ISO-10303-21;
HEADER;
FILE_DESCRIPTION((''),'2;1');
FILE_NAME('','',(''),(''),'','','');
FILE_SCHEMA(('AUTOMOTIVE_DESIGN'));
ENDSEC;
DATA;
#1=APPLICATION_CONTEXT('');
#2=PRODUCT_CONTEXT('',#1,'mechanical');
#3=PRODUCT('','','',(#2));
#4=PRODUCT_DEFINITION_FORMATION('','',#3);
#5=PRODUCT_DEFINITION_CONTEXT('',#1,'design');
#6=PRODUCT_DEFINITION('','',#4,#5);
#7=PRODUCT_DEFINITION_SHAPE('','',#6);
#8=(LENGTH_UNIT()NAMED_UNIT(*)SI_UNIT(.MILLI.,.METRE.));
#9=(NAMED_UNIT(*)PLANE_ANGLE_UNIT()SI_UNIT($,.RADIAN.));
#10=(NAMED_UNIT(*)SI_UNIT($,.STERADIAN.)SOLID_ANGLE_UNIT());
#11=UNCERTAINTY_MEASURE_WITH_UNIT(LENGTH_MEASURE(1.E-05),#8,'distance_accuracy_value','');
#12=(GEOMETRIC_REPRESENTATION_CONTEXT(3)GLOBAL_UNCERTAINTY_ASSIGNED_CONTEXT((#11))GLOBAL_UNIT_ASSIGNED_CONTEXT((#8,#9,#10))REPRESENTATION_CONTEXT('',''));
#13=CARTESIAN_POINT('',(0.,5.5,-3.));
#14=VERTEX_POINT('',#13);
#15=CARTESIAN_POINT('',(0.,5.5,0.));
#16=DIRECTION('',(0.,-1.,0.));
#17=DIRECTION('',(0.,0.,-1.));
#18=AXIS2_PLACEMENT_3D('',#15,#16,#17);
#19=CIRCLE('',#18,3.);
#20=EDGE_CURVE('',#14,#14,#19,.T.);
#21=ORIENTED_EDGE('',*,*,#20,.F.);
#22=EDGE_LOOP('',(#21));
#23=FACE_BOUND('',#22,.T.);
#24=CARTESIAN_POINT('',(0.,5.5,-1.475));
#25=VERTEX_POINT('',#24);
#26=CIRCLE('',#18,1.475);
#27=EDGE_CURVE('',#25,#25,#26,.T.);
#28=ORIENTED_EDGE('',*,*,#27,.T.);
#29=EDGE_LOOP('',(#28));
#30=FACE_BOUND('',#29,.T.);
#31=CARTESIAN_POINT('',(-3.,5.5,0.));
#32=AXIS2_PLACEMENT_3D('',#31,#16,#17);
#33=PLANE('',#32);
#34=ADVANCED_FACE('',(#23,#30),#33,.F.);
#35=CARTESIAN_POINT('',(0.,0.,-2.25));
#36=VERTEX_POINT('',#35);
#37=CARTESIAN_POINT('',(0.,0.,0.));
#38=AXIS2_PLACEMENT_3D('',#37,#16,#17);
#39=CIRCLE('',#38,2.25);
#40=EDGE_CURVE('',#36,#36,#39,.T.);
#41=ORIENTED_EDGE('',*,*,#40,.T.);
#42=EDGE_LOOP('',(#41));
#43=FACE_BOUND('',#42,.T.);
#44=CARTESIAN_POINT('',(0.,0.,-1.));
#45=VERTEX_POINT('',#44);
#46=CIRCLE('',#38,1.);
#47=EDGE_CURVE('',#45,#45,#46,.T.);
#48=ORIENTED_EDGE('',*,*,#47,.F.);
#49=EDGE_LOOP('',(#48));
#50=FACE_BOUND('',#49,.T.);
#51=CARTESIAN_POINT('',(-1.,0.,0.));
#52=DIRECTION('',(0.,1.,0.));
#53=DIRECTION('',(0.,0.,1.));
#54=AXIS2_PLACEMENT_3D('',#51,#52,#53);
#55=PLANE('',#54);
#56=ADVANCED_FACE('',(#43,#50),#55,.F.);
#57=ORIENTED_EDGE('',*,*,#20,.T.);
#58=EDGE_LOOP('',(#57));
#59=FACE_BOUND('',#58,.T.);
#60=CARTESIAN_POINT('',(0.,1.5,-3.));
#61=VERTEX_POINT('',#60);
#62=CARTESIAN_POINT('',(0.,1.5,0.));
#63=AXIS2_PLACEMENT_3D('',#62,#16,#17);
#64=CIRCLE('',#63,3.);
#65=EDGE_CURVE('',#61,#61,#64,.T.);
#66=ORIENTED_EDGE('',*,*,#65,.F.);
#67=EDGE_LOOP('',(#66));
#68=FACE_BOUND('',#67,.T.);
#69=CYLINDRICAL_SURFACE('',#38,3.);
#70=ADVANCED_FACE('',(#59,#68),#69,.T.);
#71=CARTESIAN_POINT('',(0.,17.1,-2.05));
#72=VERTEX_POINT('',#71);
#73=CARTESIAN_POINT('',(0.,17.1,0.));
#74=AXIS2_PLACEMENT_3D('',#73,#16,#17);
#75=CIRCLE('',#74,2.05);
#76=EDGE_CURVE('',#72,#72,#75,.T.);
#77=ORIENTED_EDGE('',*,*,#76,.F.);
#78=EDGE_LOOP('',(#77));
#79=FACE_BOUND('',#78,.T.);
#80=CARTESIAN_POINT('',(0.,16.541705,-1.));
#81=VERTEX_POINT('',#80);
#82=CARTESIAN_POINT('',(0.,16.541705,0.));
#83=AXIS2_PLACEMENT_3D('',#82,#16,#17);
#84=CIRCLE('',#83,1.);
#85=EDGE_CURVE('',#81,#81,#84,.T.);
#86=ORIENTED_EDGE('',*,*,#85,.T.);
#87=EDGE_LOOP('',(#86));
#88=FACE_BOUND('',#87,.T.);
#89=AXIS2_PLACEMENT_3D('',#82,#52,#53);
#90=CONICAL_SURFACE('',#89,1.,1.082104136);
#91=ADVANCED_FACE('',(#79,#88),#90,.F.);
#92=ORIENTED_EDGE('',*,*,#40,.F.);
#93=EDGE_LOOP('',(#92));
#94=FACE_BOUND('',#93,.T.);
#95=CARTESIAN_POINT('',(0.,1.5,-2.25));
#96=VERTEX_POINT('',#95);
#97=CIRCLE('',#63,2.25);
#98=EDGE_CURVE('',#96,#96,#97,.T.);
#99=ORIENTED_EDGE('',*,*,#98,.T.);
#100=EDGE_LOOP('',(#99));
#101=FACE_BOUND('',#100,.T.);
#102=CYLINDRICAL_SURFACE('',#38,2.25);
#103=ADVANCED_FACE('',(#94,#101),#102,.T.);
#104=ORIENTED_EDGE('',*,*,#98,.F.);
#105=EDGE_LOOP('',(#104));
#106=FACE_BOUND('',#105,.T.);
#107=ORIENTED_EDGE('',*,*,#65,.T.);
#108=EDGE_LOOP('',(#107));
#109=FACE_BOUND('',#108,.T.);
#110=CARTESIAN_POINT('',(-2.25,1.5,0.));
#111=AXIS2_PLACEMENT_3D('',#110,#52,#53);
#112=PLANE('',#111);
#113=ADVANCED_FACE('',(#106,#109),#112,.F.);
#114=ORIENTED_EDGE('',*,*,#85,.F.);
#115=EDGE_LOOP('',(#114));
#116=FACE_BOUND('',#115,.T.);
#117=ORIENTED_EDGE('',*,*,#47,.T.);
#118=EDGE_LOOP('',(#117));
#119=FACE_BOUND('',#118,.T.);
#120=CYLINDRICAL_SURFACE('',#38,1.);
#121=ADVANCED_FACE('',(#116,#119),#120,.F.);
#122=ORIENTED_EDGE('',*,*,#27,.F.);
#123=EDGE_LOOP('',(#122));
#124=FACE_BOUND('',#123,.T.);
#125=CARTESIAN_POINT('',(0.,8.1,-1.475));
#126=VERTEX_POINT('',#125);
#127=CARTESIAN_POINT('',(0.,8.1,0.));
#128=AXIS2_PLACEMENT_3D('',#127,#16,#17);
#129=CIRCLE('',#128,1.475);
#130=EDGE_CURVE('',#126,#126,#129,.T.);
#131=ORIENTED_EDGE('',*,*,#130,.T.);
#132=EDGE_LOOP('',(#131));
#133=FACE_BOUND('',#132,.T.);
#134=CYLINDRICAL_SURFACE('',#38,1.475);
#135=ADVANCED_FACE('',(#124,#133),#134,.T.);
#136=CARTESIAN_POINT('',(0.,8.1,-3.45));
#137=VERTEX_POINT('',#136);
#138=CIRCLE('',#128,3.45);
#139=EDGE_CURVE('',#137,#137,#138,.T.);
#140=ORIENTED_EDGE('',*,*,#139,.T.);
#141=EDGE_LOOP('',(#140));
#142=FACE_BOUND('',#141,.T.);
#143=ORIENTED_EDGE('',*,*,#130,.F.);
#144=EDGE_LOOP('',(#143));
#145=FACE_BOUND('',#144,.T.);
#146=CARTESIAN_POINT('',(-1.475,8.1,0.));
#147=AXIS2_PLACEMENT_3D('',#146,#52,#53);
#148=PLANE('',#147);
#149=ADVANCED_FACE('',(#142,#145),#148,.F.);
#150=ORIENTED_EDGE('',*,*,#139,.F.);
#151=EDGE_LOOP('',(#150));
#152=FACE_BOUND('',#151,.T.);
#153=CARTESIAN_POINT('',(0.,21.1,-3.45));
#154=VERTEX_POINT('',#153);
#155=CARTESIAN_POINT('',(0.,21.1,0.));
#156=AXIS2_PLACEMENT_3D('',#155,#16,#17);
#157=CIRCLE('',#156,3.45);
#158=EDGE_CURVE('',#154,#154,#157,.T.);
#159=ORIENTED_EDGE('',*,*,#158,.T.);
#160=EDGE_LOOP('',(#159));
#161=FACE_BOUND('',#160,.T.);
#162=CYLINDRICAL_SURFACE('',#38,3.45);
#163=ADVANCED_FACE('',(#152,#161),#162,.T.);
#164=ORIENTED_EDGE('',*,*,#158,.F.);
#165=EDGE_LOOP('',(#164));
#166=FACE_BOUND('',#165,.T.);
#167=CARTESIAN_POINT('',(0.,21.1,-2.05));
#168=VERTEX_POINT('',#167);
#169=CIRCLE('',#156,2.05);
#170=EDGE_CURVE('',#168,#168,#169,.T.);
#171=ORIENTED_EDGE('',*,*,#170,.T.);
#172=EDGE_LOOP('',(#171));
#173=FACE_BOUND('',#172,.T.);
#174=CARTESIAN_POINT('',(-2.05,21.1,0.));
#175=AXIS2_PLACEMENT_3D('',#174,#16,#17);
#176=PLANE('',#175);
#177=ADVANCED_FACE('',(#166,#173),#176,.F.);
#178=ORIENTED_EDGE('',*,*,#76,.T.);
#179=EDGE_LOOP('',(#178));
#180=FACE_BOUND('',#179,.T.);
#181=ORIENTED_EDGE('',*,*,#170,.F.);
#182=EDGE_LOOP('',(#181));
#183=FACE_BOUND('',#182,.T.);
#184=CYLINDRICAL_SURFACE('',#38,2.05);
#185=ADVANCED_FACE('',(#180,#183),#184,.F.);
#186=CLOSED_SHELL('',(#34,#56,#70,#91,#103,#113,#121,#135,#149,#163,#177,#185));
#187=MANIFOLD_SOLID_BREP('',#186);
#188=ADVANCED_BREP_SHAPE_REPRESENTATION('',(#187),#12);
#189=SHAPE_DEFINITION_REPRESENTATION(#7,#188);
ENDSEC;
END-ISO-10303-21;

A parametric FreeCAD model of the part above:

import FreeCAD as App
import Part
import Sketcher
from FreeCAD import Vector
Q = App.Units.Quantity

doc = App.newDocument("Part")
body = doc.addObject("PartDesign::Body", "Body")

sketch1 = body.newObject("Sketcher::SketchObject", "Sketch")
sketch1.AttachmentSupport = (doc.getObject("XY_Plane"), [""])
sketch1.MapMode = "FlatFace"
sketch1.addGeometry([
    Part.LineSegment(Vector(-2.25, 0, 0), Vector(-1, 0, 0)),
    Part.LineSegment(Vector(-1, 0, 0), Vector(-1, 16.541705, 0)),
    Part.LineSegment(Vector(-1, 16.541705, 0), Vector(-2.05, 17.1, 0)),
    Part.LineSegment(Vector(-2.05, 17.1, 0), Vector(-2.05, 21.1, 0)),
    Part.LineSegment(Vector(-2.05, 21.1, 0), Vector(-3.45, 21.1, 0)),
    Part.LineSegment(Vector(-3.45, 21.1, 0), Vector(-3.45, 8.1, 0)),
    Part.LineSegment(Vector(-3.45, 8.1, 0), Vector(-1.475, 8.1, 0)),
    Part.LineSegment(Vector(-1.475, 8.1, 0), Vector(-1.475, 5.5, 0)),
    Part.LineSegment(Vector(-1.475, 5.5, 0), Vector(-3, 5.5, 0)),
    Part.LineSegment(Vector(-3, 5.5, 0), Vector(-3, 1.5, 0)),
    Part.LineSegment(Vector(-3, 1.5, 0), Vector(-2.25, 1.5, 0)),
    Part.LineSegment(Vector(-2.25, 1.5, 0), Vector(-2.25, 0, 0)),
], False)
sketch1.addConstraint([
    Sketcher.Constraint("Coincident", 0, 2, 1, 1),
    Sketcher.Constraint("Coincident", 1, 2, 2, 1),
    Sketcher.Constraint("Coincident", 2, 2, 3, 1),
    Sketcher.Constraint("Coincident", 3, 2, 4, 1),
    Sketcher.Constraint("Coincident", 4, 2, 5, 1),
    Sketcher.Constraint("Coincident", 5, 2, 6, 1),
    Sketcher.Constraint("Coincident", 6, 2, 7, 1),
    Sketcher.Constraint("Coincident", 7, 2, 8, 1),
    Sketcher.Constraint("Coincident", 8, 2, 9, 1),
    Sketcher.Constraint("Coincident", 9, 2, 10, 1),
    Sketcher.Constraint("Coincident", 10, 2, 11, 1),
    Sketcher.Constraint("Coincident", 11, 2, 0, 1),
    Sketcher.Constraint("Horizontal", 0),
    Sketcher.Constraint("Vertical", 1),
    Sketcher.Constraint("Vertical", 3),
    Sketcher.Constraint("Horizontal", 4),
    Sketcher.Constraint("Vertical", 5),
    Sketcher.Constraint("Horizontal", 6),
    Sketcher.Constraint("Vertical", 7),
    Sketcher.Constraint("Horizontal", 8),
    Sketcher.Constraint("Vertical", 9),
    Sketcher.Constraint("Horizontal", 10),
    Sketcher.Constraint("Vertical", 11),
    Sketcher.Constraint("PointOnObject", 0, 2, -1),
    Sketcher.Constraint("Equal", 3, 9),
    Sketcher.Constraint("DistanceY", 3, 1, 3, 2, 4.0),
    Sketcher.Constraint("DistanceY", 5, 2, 5, 1, 13.0),
    Sketcher.Constraint("Angle", 2, Q("152 deg")),
    Sketcher.Constraint("DistanceX", 4, 2, 4, 1, 1.4),
    Sketcher.Constraint("DistanceY", 7, 2, 7, 1, 2.6),
    Sketcher.Constraint("DistanceY", 11, 2, 11, 1, 1.5),
    Sketcher.Constraint("DistanceX", 0, 2, -1, 1, 1.0),
    Sketcher.Constraint("DistanceX", 8, 2, -1, 1, 3.0),
    Sketcher.Constraint("DistanceX", 0, 1, 0, 2, 1.25),
    Sketcher.Constraint("DistanceX", 6, 1, 6, 2, 1.975),
    Sketcher.Constraint("DistanceX", 8, 2, 8, 1, 1.525),
])
revolution = body.newObject("PartDesign::Revolution", "Revolution")
revolution.Profile = sketch1
revolution.ReferenceAxis = (sketch1, ["V_Axis"])
revolution.Angle = 360

doc.recompute()
